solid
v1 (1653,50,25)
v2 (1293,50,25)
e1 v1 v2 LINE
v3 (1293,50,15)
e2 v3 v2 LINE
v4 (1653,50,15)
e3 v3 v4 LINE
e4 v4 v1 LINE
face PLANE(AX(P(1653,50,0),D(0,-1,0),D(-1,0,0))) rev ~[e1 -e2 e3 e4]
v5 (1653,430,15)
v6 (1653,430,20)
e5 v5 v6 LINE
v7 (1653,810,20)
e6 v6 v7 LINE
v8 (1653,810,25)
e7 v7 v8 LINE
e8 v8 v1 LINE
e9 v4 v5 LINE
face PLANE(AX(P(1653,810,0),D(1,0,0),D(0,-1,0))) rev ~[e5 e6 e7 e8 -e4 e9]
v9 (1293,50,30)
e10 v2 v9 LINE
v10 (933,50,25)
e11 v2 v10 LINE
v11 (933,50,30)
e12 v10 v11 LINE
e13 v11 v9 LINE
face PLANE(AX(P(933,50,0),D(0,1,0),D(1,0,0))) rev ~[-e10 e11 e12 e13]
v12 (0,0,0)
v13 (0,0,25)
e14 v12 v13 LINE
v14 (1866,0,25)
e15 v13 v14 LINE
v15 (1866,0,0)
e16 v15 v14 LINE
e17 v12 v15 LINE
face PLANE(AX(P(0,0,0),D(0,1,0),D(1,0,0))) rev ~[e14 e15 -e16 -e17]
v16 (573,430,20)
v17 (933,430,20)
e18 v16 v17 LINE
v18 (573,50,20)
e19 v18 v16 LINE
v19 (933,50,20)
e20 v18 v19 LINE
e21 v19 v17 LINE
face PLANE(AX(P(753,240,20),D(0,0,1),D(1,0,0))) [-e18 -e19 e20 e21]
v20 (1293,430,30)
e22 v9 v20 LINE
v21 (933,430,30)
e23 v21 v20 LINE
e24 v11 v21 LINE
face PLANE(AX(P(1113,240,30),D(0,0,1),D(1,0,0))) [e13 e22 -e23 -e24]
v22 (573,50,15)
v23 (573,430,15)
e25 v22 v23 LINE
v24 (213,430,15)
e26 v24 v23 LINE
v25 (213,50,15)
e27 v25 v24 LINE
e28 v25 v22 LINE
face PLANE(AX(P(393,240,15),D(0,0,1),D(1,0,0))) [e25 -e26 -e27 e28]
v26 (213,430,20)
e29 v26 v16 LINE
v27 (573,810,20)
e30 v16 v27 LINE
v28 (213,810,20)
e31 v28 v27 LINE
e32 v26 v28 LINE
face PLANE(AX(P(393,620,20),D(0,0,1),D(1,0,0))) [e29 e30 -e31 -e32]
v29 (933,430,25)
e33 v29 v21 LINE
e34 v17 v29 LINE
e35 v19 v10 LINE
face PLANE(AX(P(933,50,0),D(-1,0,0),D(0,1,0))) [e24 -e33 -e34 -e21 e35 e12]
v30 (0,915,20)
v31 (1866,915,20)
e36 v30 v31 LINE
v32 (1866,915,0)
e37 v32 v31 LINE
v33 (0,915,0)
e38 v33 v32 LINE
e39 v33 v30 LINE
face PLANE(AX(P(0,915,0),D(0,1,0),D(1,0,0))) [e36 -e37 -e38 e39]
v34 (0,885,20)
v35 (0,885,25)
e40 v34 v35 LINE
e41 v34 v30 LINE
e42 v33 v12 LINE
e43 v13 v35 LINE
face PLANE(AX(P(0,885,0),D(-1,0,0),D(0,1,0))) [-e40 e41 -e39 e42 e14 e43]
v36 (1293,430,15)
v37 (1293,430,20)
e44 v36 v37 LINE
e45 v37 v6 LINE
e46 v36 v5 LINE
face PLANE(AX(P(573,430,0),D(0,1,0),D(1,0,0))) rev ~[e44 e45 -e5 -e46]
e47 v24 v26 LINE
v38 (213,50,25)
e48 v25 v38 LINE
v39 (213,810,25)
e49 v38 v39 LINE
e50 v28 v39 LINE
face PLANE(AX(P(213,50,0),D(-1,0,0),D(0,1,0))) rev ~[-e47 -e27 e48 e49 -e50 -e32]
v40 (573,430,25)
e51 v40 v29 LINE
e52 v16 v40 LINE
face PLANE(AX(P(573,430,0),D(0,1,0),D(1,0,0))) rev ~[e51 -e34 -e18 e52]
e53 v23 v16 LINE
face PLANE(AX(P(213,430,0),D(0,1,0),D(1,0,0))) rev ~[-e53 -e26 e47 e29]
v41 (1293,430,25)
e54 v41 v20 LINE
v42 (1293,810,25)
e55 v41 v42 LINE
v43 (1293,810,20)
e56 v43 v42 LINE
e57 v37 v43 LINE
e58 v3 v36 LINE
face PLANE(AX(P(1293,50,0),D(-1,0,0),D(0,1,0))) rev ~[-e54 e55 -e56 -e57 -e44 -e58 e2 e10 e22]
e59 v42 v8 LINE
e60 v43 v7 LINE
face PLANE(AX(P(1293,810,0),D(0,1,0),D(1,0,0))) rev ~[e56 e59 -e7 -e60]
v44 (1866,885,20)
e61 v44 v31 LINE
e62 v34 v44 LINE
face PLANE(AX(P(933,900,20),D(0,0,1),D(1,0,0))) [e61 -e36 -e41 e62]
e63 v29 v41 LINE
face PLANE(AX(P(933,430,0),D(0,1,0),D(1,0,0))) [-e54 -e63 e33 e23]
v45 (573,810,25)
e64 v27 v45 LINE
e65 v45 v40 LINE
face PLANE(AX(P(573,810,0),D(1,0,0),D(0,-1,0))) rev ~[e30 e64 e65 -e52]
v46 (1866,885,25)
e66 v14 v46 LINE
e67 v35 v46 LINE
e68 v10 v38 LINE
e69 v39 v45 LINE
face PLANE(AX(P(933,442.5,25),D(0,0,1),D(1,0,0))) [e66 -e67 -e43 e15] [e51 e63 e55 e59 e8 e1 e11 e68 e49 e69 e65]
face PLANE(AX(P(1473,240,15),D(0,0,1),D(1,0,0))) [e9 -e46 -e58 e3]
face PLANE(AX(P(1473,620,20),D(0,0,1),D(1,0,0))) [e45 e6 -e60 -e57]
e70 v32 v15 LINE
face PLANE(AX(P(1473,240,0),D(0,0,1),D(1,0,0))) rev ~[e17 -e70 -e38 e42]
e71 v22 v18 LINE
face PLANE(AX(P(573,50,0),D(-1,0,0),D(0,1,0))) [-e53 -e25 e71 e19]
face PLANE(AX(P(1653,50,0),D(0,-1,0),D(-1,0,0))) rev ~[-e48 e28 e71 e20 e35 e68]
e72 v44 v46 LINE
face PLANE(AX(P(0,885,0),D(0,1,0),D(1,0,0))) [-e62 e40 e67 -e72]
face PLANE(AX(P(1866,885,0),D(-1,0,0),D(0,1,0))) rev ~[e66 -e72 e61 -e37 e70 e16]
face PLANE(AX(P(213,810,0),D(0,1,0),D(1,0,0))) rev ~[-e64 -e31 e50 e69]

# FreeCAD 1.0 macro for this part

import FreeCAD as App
import Part
import Sketcher


def add_polygon(sketch, points):
    """Adds a closed chain of lines whose ends are joined by coincident constraints."""
    first, n = sketch.GeometryCount, len(points)
    for a, b in zip(points, points[1:] + points[:1]):
        sketch.addGeometry(Part.LineSegment(App.Vector(*a, 0), App.Vector(*b, 0)), False)
    for i in range(n):
        sketch.addConstraint(Sketcher.Constraint("Coincident", first + i, 2, first + (i + 1) % n, 1))

doc = App.newDocument("Part")
body = doc.addObject("PartDesign::Body", "Body")

sketch1 = doc.addObject("Sketcher::SketchObject", "Sketch")
body.addObject(sketch1)
sketch1.AttachmentSupport = (doc.XY_Plane, [""])
sketch1.MapMode = "FlatFace"
add_polygon(sketch1, [(0, 885), (0, 0), (1866, 0), (1866, 885)])
add_polygon(sketch1, [(1653, 50), (213, 50), (213, 810), (573, 810), (573, 430), (1293, 430), (1293, 810), (1653, 810)])
sketch1.addConstraint([
    Sketcher.Constraint("Vertical", 0),
    Sketcher.Constraint("Horizontal", 1),
    Sketcher.Constraint("Vertical", 2),
    Sketcher.Constraint("Horizontal", 3),
    Sketcher.Constraint("Horizontal", 4),
    Sketcher.Constraint("Vertical", 5),
    Sketcher.Constraint("Horizontal", 6),
    Sketcher.Constraint("Vertical", 7),
    Sketcher.Constraint("Horizontal", 8),
    Sketcher.Constraint("Vertical", 9),
    Sketcher.Constraint("Horizontal", 10),
    Sketcher.Constraint("Vertical", 11),
    Sketcher.Constraint("Coincident", 0, 2, -1, 1),
    Sketcher.Constraint("Horizontal", 6, 2, 9, 2),
    Sketcher.Constraint("Equal", 6, 10),
    Sketcher.Constraint("DistanceX", 1, 1, 1, 2, 1866.0),
    Sketcher.Constraint("DistanceX", 4, 2, 4, 1, 1440.0),
    Sketcher.Constraint("DistanceX", 6, 1, 6, 2, 360.0),
    Sketcher.Constraint("DistanceY", 0, 2, 0, 1, 885.0),
    Sketcher.Constraint("DistanceY", 5, 1, 5, 2, 760.0),
    Sketcher.Constraint("DistanceY", 7, 2, 7, 1, 380.0),
    Sketcher.Constraint("DistanceX", -1, 1, 4, 2, 213.0),
    Sketcher.Constraint("DistanceY", -1, 1, 4, 2, 50.0),
])
pad1 = doc.addObject("PartDesign::Pad", "Pad")
body.addObject(pad1)
pad1.Profile = sketch1
pad1.Length = 25

sketch2 = doc.addObject("Sketcher::SketchObject", "Sketch001")
body.addObject(sketch2)
sketch2.AttachmentSupport = (doc.XY_Plane, [""])
sketch2.MapMode = "FlatFace"
add_polygon(sketch2, [(0, 915), (0, 885), (1866, 885), (1866, 915)])
add_polygon(sketch2, [(213, 810), (213, 430), (573, 430), (573, 810)])
add_polygon(sketch2, [(573, 430), (573, 50), (933, 50), (933, 430)])
add_polygon(sketch2, [(1293, 810), (1293, 430), (1653, 430), (1653, 810)])
sketch2.addConstraint([
    Sketcher.Constraint("Vertical", 0),
    Sketcher.Constraint("Horizontal", 1),
    Sketcher.Constraint("Vertical", 2),
    Sketcher.Constraint("Horizontal", 3),
    Sketcher.Constraint("Vertical", 4),
    Sketcher.Constraint("Horizontal", 5),
    Sketcher.Constraint("Vertical", 6),
    Sketcher.Constraint("Horizontal", 7),
    Sketcher.Constraint("Vertical", 8),
    Sketcher.Constraint("Horizontal", 9),
    Sketcher.Constraint("Vertical", 10),
    Sketcher.Constraint("Horizontal", 11),
    Sketcher.Constraint("Vertical", 12),
    Sketcher.Constraint("Horizontal", 13),
    Sketcher.Constraint("Vertical", 14),
    Sketcher.Constraint("Horizontal", 15),
    Sketcher.Constraint("Coincident", 11, 2, 5, 2),
    Sketcher.Constraint("PointOnObject", 0, 2, -2),
    Sketcher.Constraint("Horizontal", 11, 2, 12, 2),
    Sketcher.Constraint("Horizontal", 7, 2, 14, 2),
    Sketcher.Constraint("Equal", 7, 9),
    Sketcher.Constraint("Equal", 11, 13),
    Sketcher.Constraint("Equal", 6, 8),
    Sketcher.Constraint("DistanceX", 1, 1, 1, 2, 1866.0),
    Sketcher.Constraint("DistanceX", 5, 1, 5, 2, 360.0),
    Sketcher.Constraint("DistanceY", 0, 2, 0, 1, 30.0),
    Sketcher.Constraint("DistanceY", 4, 2, 4, 1, 380.0),
    Sketcher.Constraint("DistanceY", -1, 1, 0, 2, 885.0),
    Sketcher.Constraint("DistanceX", -1, 1, 4, 2, 213.0),
    Sketcher.Constraint("DistanceY", -1, 1, 4, 2, 430.0),
    Sketcher.Constraint("DistanceX", -1, 1, 12, 2, 1293.0),
])
pad2 = doc.addObject("PartDesign::Pad", "Pad001")
body.addObject(pad2)
pad2.Profile = sketch2
pad2.Length = 20

sketch3 = doc.addObject("Sketcher::SketchObject", "Sketch002")
body.addObject(sketch3)
sketch3.AttachmentSupport = (doc.XY_Plane, [""])
sketch3.MapMode = "FlatFace"
add_polygon(sketch3, [(1293, 430), (1293, 50), (1653, 50), (1653, 430)])
add_polygon(sketch3, [(213, 430), (213, 50), (573, 50), (573, 430)])
sketch3.addConstraint([
    Sketcher.Constraint("Vertical", 0),
    Sketcher.Constraint("Horizontal", 1),
    Sketcher.Constraint("Vertical", 2),
    Sketcher.Constraint("Horizontal", 3),
    Sketcher.Constraint("Vertical", 4),
    Sketcher.Constraint("Horizontal", 5),
    Sketcher.Constraint("Vertical", 6),
    Sketcher.Constraint("Horizontal", 7),
    Sketcher.Constraint("Horizontal", 1, 2, 4, 2),
    Sketcher.Constraint("Horizontal", 3, 2, 6, 2),
    Sketcher.Constraint("Equal", 3, 5),
    Sketcher.Constraint("DistanceX", 1, 1, 1, 2, 360.0),
    Sketcher.Constraint("DistanceY", 0, 2, 0, 1, 380.0),
    Sketcher.Constraint("DistanceX", -1, 1, 0, 2, 1293.0),
    Sketcher.Constraint("DistanceY", -1, 1, 0, 2, 50.0),
    Sketcher.Constraint("DistanceX", -1, 1, 4, 2, 213.0),
])
pad3 = doc.addObject("PartDesign::Pad", "Pad002")
body.addObject(pad3)
pad3.Profile = sketch3
pad3.Length = 15

sketch4 = doc.addObject("Sketcher::SketchObject", "Sketch003")
body.addObject(sketch4)
sketch4.AttachmentSupport = (doc.XY_Plane, [""])
sketch4.MapMode = "FlatFace"
add_polygon(sketch4, [(933, 430), (933, 50), (1293, 50), (1293, 430)])
sketch4.addConstraint([
    Sketcher.Constraint("Vertical", 0),
    Sketcher.Constraint("Horizontal", 1),
    Sketcher.Constraint("Vertical", 2),
    Sketcher.Constraint("Horizontal", 3),
    Sketcher.Constraint("DistanceX", 1, 1, 1, 2, 360.0),
    Sketcher.Constraint("DistanceY", 0, 2, 0, 1, 380.0),
    Sketcher.Constraint("DistanceX", -1, 1, 0, 2, 933.0),
    Sketcher.Constraint("DistanceY", -1, 1, 0, 2, 50.0),
])
pad4 = doc.addObject("PartDesign::Pad", "Pad003")
body.addObject(pad4)
pad4.Profile = sketch4
pad4.Length = 30

doc.recompute()
